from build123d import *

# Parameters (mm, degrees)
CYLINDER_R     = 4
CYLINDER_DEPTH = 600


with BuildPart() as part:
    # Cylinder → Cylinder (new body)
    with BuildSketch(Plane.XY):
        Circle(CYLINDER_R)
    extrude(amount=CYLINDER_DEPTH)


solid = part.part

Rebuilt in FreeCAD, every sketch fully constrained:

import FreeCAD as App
import Part
import Sketcher

V = App.Vector
Q = App.Units.Quantity

doc = App.newDocument("Part")
body = doc.addObject("PartDesign::Body", "Body")

# Sketch on XY plane
sketch1 = doc.addObject("Sketcher::SketchObject", "Sketch")
body.addObject(sketch1)
sketch1.AttachmentSupport = (doc.XY_Plane, [""])
sketch1.MapMode = "FlatFace"
sketch1.addGeometry(Part.Circle(V(0, 0, 0), V(0, 0, 1), 4), False)
sketch1.addConstraint([
    Sketcher.Constraint("Coincident", 0, 3, -1, 1),
    Sketcher.Constraint("Diameter", 0, Q("8 mm")),
])
pad1 = doc.addObject("PartDesign::Pad", "Pad")
body.addObject(pad1)
pad1.Profile = sketch1
pad1.Length = 600

doc.recompute()
